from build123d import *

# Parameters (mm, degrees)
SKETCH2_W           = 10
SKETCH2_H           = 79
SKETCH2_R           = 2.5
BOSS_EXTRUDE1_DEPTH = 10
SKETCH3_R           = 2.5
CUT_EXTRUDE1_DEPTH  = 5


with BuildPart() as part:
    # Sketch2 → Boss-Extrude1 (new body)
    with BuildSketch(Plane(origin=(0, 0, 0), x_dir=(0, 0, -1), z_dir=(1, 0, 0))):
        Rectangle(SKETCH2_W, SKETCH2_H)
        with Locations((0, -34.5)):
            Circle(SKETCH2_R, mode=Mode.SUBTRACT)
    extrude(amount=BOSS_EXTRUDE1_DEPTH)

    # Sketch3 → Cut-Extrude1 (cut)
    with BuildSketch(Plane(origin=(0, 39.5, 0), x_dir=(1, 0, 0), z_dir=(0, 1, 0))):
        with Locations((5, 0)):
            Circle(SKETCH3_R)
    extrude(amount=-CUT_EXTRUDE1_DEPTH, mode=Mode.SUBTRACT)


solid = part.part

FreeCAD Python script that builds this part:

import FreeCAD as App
import Part
import Sketcher


def add_polygon(sketch, points):
    """Adds a closed chain of lines whose ends are joined by coincident constraints."""
    first, n = sketch.GeometryCount, len(points)
    for a, b in zip(points, points[1:] + points[:1]):
        sketch.addGeometry(Part.LineSegment(App.Vector(*a, 0), App.Vector(*b, 0)), False)
    for i in range(n):
        sketch.addConstraint(Sketcher.Constraint("Coincident", first + i, 2, first + (i + 1) % n, 1))

doc = App.newDocument("Part")
body = doc.addObject("PartDesign::Body", "Body")

# Sketch on YZ plane
sketch1 = body.newObject("Sketcher::SketchObject", "Sketch")
sketch1.AttachmentSupport = (doc.getObject("YZ_Plane"), [""])
sketch1.MapMode = "FlatFace"
add_polygon(sketch1, [(39.5, 5), (-39.5, 5), (-39.5, -5), (39.5, -5)])  # lines 0-3
sketch1.addGeometry(Part.Circle(App.Vector(-34.5, 0, 0), App.Vector(0, 0, 1), 2.5), False)  # 4
sketch1.addConstraint([
    Sketcher.Constraint("Horizontal", 0),
    Sketcher.Constraint("Vertical", 1),
    Sketcher.Constraint("Horizontal", 2),
    Sketcher.Constraint("Vertical", 3),
    Sketcher.Constraint("Symmetric", 0, 2, 2, 2, -1, 1),
    Sketcher.Constraint("PointOnObject", 4, 3, -1),
    Sketcher.Constraint("Diameter", 4, 5.0),
    Sketcher.Constraint("DistanceX", 0, 2, 0, 1, 79.0),
    Sketcher.Constraint("DistanceY", 1, 2, 1, 1, 10.0),
    Sketcher.Constraint("DistanceX", 0, 2, 4, 3, 5.0),
])
pad1 = body.newObject("PartDesign::Pad", "Pad")
pad1.Profile = sketch1
pad1.Length = 10

# Sketch on XZ plane
sketch2 = body.newObject("Sketcher::SketchObject", "Sketch001")
sketch2.AttachmentSupport = (doc.getObject("XZ_Plane"), [""])
sketch2.MapMode = "FlatFace"
sketch2.AttachmentOffset = App.Placement(App.Vector(0, 0, -39.5), App.Rotation())
sketch2.addGeometry(Part.Circle(App.Vector(5, 0, 0), App.Vector(0, 0, 1), 2.5), False)
sketch2.addConstraint([
    Sketcher.Constraint("PointOnObject", 0, 3, -1),
    Sketcher.Constraint("Diameter", 0, 5.0),
    Sketcher.Constraint("DistanceX", -1, 1, 0, 3, 5.0),
])
pocket1 = body.newObject("PartDesign::Pocket", "Pocket")
pocket1.Profile = sketch2
pocket1.Length = 5
pocket1.Reversed = True

doc.recompute()
